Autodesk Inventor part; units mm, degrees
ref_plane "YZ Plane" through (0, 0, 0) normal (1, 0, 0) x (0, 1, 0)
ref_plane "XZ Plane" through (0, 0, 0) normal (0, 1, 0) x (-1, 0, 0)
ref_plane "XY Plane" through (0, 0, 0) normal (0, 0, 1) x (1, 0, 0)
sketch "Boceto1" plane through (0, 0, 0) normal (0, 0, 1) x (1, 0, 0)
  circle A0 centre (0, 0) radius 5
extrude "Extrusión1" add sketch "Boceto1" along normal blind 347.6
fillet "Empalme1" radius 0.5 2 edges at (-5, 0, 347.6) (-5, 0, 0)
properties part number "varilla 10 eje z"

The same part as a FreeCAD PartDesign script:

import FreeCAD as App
import Part
import Sketcher

V = App.Vector


def edges_at(feature, points):
    """Names of the edges that pass closest to the given points."""
    edges = feature.Shape.Edges
    near = lambda p: min(range(len(edges)), key=lambda i: edges[i].distToShape(Part.Vertex(*p))[0])
    return sorted({f"Edge{near(p) + 1}" for p in points})

doc = App.newDocument("Part")
body = doc.addObject("PartDesign::Body", "Body")

sketch1 = body.newObject("Sketcher::SketchObject", "Sketch")
sketch1.AttachmentSupport = (doc.getObject("XY_Plane"), [""])
sketch1.MapMode = "FlatFace"
sketch1.addGeometry(Part.Circle(V(0, 0, 0), V(0, 0, 1), 5), False)
sketch1.addConstraint([
    Sketcher.Constraint("Coincident", 0, 3, -1, 1),
    Sketcher.Constraint("Diameter", 0, 10.0),
])
pad1 = body.newObject("PartDesign::Pad", "Pad")
pad1.Profile = sketch1
pad1.Length = 347.6
doc.recompute()

fillet = body.newObject("PartDesign::Fillet", "Fillet")
fillet.Base = (pad1, edges_at(pad1, [(-5, 0, 347.6), (-5, 0, 0)]))
fillet.Radius = 0.5

doc.recompute()
